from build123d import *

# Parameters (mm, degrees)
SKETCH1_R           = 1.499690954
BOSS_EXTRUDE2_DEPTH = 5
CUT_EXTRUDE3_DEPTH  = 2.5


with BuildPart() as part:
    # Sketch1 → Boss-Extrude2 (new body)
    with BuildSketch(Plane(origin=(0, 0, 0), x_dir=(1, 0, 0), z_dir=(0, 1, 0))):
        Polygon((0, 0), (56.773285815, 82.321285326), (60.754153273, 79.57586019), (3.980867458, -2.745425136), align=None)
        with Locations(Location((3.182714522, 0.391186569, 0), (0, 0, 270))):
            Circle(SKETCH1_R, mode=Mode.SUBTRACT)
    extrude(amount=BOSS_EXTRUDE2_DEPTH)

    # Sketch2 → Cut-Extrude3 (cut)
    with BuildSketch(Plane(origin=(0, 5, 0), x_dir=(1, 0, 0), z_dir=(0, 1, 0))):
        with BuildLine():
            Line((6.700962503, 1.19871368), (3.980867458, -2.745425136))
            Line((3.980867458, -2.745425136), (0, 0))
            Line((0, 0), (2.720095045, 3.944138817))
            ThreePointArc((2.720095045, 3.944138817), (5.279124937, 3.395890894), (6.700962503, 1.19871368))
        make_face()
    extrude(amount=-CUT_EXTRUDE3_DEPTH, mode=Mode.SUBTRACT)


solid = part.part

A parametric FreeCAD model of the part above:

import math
import FreeCAD as App
import Part
import Sketcher
from FreeCAD import Vector
Q = App.Units.Quantity


def add_polygon(sketch, points):
    """Adds a closed chain of lines whose ends are joined by coincident constraints."""
    first, n = sketch.GeometryCount, len(points)
    for a, b in zip(points, points[1:] + points[:1]):
        sketch.addGeometry(Part.LineSegment(App.Vector(*a, 0), App.Vector(*b, 0)), False)
    for i in range(n):
        sketch.addConstraint(Sketcher.Constraint("Coincident", first + i, 2, first + (i + 1) % n, 1))

doc = App.newDocument("Part")
params = doc.addObject("Spreadsheet::Sheet", "Params")
for row, (alias, value) in enumerate([
    ("sketch1_length", "100 mm"),
    ("pad1_length", "5 mm"),
    ("pocket1_length", "2.5 mm"),
], start=1):
    params.set(f"A{row}", alias)
    params.set(f"B{row}", "=" + value)
    params.setAlias(f"B{row}", alias)

body = doc.addObject("PartDesign::Body", "Body")

# Sketch on XZ plane
sketch1 = doc.addObject("Sketcher::SketchObject", "Sketch")
body.addObject(sketch1)
sketch1.AttachmentSupport = (doc.XZ_Plane, [""])
sketch1.MapMode = "FlatFace"
add_polygon(sketch1, [(56.8, -82.3), (0, 0), (4, 2.7), (60.8, -79.6)])  # lines 0-3
sketch1.addGeometry(Part.Circle(Vector(3.2, -0.4, 0), Vector(0, 0, 1), 1.5), False)  # 4
sketch1.addConstraint([
    Sketcher.Constraint("Coincident", 0, 2, -1, 1),
    Sketcher.Constraint("Perpendicular", 0, 1),
    Sketcher.Constraint("Perpendicular", 1, 2),
    Sketcher.Constraint("Perpendicular", 2, 3),
    Sketcher.Constraint("Distance", 0, Q("100 mm")),
    Sketcher.Constraint("Diameter", 4, Q("2.999382 mm")),
    Sketcher.Constraint("DistanceY", 3, 2, 4, 3, Q("81.930099 mm")),
    Sketcher.Constraint("Distance", 1, Q("4.835769 mm")),
    Sketcher.Constraint("DistanceY", 2, 2, -1, 1, Q("79.57586 mm")),
    Sketcher.Constraint("DistanceX", 4, 3, 2, 2, Q("57.571439 mm")),
])
sketch1.setExpression("Constraints[8]", "Params.sketch1_length")
pad1 = doc.addObject("PartDesign::Pad", "Pad")
body.addObject(pad1)
pad1.Profile = sketch1
pad1.setExpression("Length", "Params.pad1_length")
pad1.Reversed = True

# Sketch on XZ plane
sketch2 = doc.addObject("Sketcher::SketchObject", "Sketch001")
body.addObject(sketch2)
sketch2.AttachmentSupport = (doc.XZ_Plane, [""])
sketch2.MapMode = "FlatFace"
sketch2.AttachmentOffset = App.Placement(Vector(0, 0, -5), App.Rotation())
sketch2.addGeometry([
    Part.LineSegment(Vector(4, 2.7, 0), Vector(6.7, -1.2, 0)),
    Part.ArcOfCircle(Part.Circle(Vector(3.3, -0.6, 0), Vector(0, 0, 1), 3.4), math.radians(-100), math.radians(-10)),
    Part.LineSegment(Vector(2.7, -3.9, 0), Vector(0, 0, 0)),
    Part.LineSegment(Vector(0, 0, 0), Vector(4, 2.7, 0)),
], False)
sketch2.addConstraint([
    Sketcher.Constraint("Coincident", 0, 2, 1, 2),
    Sketcher.Constraint("Coincident", 1, 1, 2, 1),
    Sketcher.Constraint("Coincident", 2, 2, 3, 1),
    Sketcher.Constraint("Coincident", 3, 2, 0, 1),
    Sketcher.Constraint("Coincident", 2, 2, -1, 1),
    Sketcher.Constraint("Parallel", 0, 2),
    Sketcher.Constraint("Perpendicular", 2, 3),
    Sketcher.Constraint("Equal", 0, 2),
    Sketcher.Constraint("Radius", 1, Q("3.419405 mm")),
    Sketcher.Constraint("Distance", 3, Q("4.835769 mm")),
    Sketcher.Constraint("DistanceY", 1, 1, -1, 1, Q("3.944139 mm")),
    Sketcher.Constraint("DistanceY", 0, 2, 1, 3, Q("0.617721 mm")),
])
pocket1 = doc.addObject("PartDesign::Pocket", "Pocket")
body.addObject(pocket1)
pocket1.Profile = sketch2
pocket1.setExpression("Length", "Params.pocket1_length")
pocket1.Reversed = True

doc.recompute()
